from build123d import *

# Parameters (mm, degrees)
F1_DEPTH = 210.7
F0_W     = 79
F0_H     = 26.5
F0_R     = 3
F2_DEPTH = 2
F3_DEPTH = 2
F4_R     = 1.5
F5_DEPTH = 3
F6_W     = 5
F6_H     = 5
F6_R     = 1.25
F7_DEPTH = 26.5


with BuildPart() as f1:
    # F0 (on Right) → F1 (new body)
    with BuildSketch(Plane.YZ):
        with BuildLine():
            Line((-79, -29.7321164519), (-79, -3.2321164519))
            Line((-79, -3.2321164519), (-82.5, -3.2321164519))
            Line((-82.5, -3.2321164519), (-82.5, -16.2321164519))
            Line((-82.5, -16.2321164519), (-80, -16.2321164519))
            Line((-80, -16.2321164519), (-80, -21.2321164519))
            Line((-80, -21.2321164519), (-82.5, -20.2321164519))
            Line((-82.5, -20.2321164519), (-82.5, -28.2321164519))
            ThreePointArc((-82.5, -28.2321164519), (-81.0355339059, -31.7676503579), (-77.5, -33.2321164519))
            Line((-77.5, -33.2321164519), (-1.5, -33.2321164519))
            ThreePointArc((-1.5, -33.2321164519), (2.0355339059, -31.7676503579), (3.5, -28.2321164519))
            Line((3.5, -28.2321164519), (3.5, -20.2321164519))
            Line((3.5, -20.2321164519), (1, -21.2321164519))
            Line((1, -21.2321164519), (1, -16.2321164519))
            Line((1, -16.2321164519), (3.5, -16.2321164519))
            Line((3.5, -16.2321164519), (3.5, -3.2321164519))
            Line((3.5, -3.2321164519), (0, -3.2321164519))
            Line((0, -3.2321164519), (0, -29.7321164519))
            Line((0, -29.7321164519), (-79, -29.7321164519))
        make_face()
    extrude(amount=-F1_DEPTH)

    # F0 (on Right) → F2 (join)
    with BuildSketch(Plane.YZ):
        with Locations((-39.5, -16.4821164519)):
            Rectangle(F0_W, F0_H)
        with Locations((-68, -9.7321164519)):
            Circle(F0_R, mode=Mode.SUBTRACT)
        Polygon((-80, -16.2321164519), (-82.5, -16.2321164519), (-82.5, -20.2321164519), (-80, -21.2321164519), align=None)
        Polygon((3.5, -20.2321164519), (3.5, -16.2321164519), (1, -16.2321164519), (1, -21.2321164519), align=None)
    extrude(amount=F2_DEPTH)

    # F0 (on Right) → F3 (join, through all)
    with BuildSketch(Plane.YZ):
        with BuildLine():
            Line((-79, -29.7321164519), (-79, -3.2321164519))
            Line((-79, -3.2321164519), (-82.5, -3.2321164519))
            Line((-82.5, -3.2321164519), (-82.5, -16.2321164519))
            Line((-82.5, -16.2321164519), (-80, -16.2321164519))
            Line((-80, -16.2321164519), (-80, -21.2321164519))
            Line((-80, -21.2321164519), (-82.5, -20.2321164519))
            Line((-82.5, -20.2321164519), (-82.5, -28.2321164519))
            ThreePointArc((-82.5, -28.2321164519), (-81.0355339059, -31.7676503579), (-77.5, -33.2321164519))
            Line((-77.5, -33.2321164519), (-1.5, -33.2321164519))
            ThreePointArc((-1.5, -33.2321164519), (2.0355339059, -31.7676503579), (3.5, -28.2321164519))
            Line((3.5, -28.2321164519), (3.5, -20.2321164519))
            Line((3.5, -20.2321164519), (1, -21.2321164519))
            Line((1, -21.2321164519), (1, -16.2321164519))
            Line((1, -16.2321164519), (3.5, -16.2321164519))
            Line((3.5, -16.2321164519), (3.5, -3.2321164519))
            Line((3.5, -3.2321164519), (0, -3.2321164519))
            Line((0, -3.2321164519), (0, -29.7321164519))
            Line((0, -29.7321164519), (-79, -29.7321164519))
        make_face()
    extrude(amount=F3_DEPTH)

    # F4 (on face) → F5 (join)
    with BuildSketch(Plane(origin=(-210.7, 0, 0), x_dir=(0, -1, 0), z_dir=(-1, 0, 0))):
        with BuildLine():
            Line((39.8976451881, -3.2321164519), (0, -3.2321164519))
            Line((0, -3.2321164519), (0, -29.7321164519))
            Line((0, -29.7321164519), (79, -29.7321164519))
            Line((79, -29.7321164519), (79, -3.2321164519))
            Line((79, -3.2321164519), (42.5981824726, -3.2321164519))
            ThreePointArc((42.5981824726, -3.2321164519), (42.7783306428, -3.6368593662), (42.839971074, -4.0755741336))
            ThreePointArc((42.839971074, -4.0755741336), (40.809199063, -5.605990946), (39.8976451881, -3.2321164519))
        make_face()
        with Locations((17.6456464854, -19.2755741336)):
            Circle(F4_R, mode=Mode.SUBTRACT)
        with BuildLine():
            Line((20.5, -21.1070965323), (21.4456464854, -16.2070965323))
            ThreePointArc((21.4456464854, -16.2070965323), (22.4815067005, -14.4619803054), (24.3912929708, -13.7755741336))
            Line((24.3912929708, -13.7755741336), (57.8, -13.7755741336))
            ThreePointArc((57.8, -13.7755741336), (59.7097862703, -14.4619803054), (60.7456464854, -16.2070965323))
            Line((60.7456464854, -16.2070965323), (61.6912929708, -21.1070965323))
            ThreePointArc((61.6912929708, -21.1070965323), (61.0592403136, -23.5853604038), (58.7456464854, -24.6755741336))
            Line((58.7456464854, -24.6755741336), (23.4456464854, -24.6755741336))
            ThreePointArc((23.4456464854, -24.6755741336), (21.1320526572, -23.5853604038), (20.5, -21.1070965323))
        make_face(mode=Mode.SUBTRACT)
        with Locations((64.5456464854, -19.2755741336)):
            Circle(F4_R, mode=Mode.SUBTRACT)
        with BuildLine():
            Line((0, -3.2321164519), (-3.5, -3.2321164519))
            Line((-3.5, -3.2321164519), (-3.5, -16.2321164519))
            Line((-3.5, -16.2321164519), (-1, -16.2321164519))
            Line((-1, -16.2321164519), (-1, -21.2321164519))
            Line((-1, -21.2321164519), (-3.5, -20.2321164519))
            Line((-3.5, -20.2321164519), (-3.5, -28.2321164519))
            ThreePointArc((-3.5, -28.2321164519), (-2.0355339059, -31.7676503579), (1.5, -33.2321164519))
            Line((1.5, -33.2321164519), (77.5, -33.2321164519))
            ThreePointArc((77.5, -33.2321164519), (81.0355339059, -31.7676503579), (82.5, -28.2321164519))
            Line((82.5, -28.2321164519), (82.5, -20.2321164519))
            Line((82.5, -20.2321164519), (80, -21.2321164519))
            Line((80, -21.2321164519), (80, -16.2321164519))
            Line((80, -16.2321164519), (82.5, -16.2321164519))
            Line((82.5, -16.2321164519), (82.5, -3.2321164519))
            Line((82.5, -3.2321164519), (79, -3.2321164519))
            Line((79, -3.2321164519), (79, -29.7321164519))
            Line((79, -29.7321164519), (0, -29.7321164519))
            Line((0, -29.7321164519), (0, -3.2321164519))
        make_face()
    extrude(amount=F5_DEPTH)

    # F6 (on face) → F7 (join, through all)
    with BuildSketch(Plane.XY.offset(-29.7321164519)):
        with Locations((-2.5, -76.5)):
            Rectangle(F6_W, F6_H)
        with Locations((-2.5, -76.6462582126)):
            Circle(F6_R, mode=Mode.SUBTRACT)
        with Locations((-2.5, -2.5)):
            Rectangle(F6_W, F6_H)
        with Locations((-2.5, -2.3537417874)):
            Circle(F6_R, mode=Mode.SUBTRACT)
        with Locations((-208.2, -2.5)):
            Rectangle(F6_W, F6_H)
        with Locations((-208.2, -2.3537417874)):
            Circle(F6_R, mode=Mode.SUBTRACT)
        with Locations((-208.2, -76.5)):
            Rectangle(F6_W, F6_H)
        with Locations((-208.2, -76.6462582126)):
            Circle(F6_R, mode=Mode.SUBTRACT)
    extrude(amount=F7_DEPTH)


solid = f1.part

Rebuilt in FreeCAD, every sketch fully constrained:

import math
import FreeCAD as App
import Part
import Sketcher

V = App.Vector
Q = App.Units.Quantity

doc = App.newDocument("Part")
body = doc.addObject("PartDesign::Body", "Body")
body.AllowCompound = True

sketch1 = body.newObject("Sketcher::SketchObject", "Sketch")
sketch1.AttachmentSupport = (doc.getObject("YZ_Plane"), [""])
sketch1.MapMode = "FlatFace"
sketch1.addGeometry([
    Part.LineSegment(V(-79, -29.7, 0), V(-79, -3.2, 0)),
    Part.LineSegment(V(-79, -3.2, 0), V(-82.5, -3.2, 0)),
    Part.LineSegment(V(-82.5, -3.2, 0), V(-82.5, -16.2, 0)),
    Part.LineSegment(V(-82.5, -16.2, 0), V(-80, -16.2, 0)),
    Part.LineSegment(V(-80, -16.2, 0), V(-80, -21.2, 0)),
    Part.LineSegment(V(-80, -21.2, 0), V(-82.5, -20.2, 0)),
    Part.LineSegment(V(-82.5, -20.2, 0), V(-82.5, -28.2, 0)),
    Part.ArcOfCircle(Part.Circle(V(-77.5, -28.2, 0), V(0, 0, 1), 5), math.radians(180), math.radians(270)),
    Part.LineSegment(V(-77.5, -33.2, 0), V(-1.5, -33.2, 0)),
    Part.ArcOfCircle(Part.Circle(V(-1.5, -28.2, 0), V(0, 0, 1), 5), math.radians(-90), math.radians(0)),
    Part.LineSegment(V(3.5, -28.2, 0), V(3.5, -20.2, 0)),
    Part.LineSegment(V(3.5, -20.2, 0), V(1, -21.2, 0)),
    Part.LineSegment(V(1, -21.2, 0), V(1, -16.2, 0)),
    Part.LineSegment(V(1, -16.2, 0), V(3.5, -16.2, 0)),
    Part.LineSegment(V(3.5, -16.2, 0), V(3.5, -3.2, 0)),
    Part.LineSegment(V(3.5, -3.2, 0), V(0, -3.2, 0)),
    Part.LineSegment(V(0, -3.2, 0), V(0, -29.7, 0)),
    Part.LineSegment(V(0, -29.7, 0), V(-79, -29.7, 0)),
], False)
sketch1.addConstraint([
    Sketcher.Constraint("Coincident", 0, 2, 1, 1),
    Sketcher.Constraint("Coincident", 1, 2, 2, 1),
    Sketcher.Constraint("Coincident", 2, 2, 3, 1),
    Sketcher.Constraint("Coincident", 3, 2, 4, 1),
    Sketcher.Constraint("Coincident", 4, 2, 5, 1),
    Sketcher.Constraint("Coincident", 5, 2, 6, 1),
    Sketcher.Constraint("Tangent", 6, 2, 7, 1),
    Sketcher.Constraint("Tangent", 7, 2, 8, 1),
    Sketcher.Constraint("Tangent", 8, 2, 9, 1),
    Sketcher.Constraint("Tangent", 9, 2, 10, 1),
    Sketcher.Constraint("Coincident", 10, 2, 11, 1),
    Sketcher.Constraint("Coincident", 11, 2, 12, 1),
    Sketcher.Constraint("Coincident", 12, 2, 13, 1),
    Sketcher.Constraint("Coincident", 13, 2, 14, 1),
    Sketcher.Constraint("Coincident", 14, 2, 15, 1),
    Sketcher.Constraint("Coincident", 15, 2, 16, 1),
    Sketcher.Constraint("Coincident", 16, 2, 17, 1),
    Sketcher.Constraint("Coincident", 17, 2, 0, 1),
    Sketcher.Constraint("Vertical", 0),
    Sketcher.Constraint("Horizontal", 1),
    Sketcher.Constraint("Vertical", 2),
    Sketcher.Constraint("Horizontal", 3),
    Sketcher.Constraint("Vertical", 4),
    Sketcher.Constraint("Vertical", 6),
    Sketcher.Constraint("Horizontal", 8),
    Sketcher.Constraint("Vertical", 10),
    Sketcher.Constraint("Vertical", 12),
    Sketcher.Constraint("Horizontal", 13),
    Sketcher.Constraint("Vertical", 14),
    Sketcher.Constraint("Horizontal", 15),
    Sketcher.Constraint("Vertical", 16),
    Sketcher.Constraint("Horizontal", 17),
    Sketcher.Constraint("Equal", 7, 9),
    Sketcher.Constraint("PointOnObject", 15, 2, -2),
    Sketcher.Constraint("Horizontal", 5, 2, 10, 2),
    Sketcher.Constraint("Horizontal", 4, 2, 11, 2),
    Sketcher.Constraint("Horizontal", 3, 2, 12, 2),
    Sketcher.Constraint("Horizontal", 1, 2, 14, 2),
    Sketcher.Constraint("Vertical", 2, 2, 5, 2),
    Sketcher.Constraint("Vertical", 10, 2, 13, 2),
    Sketcher.Constraint("Equal", 3, 13),
    Sketcher.Constraint("Equal", 1, 15),
    Sketcher.Constraint("Radius", 7, Q("5 mm")),
    Sketcher.Constraint("DistanceX", 8, 1, 8, 2, Q("76 mm")),
    Sketcher.Constraint("DistanceX", 17, 2, 17, 1, Q("79 mm")),
    Sketcher.Constraint("DistanceY", 2, 2, 2, 1, Q("13 mm")),
    Sketcher.Constraint("DistanceY", 4, 2, 4, 1, Q("5 mm")),
    Sketcher.Constraint("DistanceY", 6, 2, 6, 1, Q("8 mm")),
    Sketcher.Constraint("DistanceX", 3, 1, 3, 2, Q("2.5 mm")),
    Sketcher.Constraint("DistanceY", 0, 1, 0, 2, Q("26.5 mm")),
    Sketcher.Constraint("DistanceY", 7, 3, 0, 2, Q("25 mm")),
    Sketcher.Constraint("DistanceY", 7, 3, -1, 1, Q("28.232116 mm")),
])
pad1 = body.newObject("PartDesign::Pad", "Pad")
pad1.Profile = sketch1
pad1.Length = 210.7
pad1.Reversed = True

sketch2 = body.newObject("Sketcher::SketchObject", "Sketch001")
sketch2.AttachmentSupport = (doc.getObject("YZ_Plane"), [""])
sketch2.MapMode = "FlatFace"
sketch2.addGeometry([
    Part.LineSegment(V(-79, -3.2, 0), V(-79, -29.7, 0)),
    Part.LineSegment(V(-79, -29.7, 0), V(0, -29.7, 0)),
    Part.LineSegment(V(0, -29.7, 0), V(0, -3.2, 0)),
    Part.LineSegment(V(0, -3.2, 0), V(-79, -3.2, 0)),
    Part.Circle(V(-68, -9.7, 0), V(0, 0, 1), 3),
    Part.LineSegment(V(-80, -16.2, 0), V(-82.5, -16.2, 0)),
    Part.LineSegment(V(-82.5, -16.2, 0), V(-82.5, -20.2, 0)),
    Part.LineSegment(V(-82.5, -20.2, 0), V(-80, -21.2, 0)),
    Part.LineSegment(V(-80, -21.2, 0), V(-80, -16.2, 0)),
    Part.LineSegment(V(3.5, -20.2, 0), V(3.5, -16.2, 0)),
    Part.LineSegment(V(3.5, -16.2, 0), V(1, -16.2, 0)),
    Part.LineSegment(V(1, -16.2, 0), V(1, -21.2, 0)),
    Part.LineSegment(V(1, -21.2, 0), V(3.5, -20.2, 0)),
], False)
sketch2.addConstraint([
    Sketcher.Constraint("Coincident", 0, 2, 1, 1),
    Sketcher.Constraint("Coincident", 1, 2, 2, 1),
    Sketcher.Constraint("Coincident", 2, 2, 3, 1),
    Sketcher.Constraint("Coincident", 3, 2, 0, 1),
    Sketcher.Constraint("Coincident", 5, 2, 6, 1),
    Sketcher.Constraint("Coincident", 6, 2, 7, 1),
    Sketcher.Constraint("Coincident", 7, 2, 8, 1),
    Sketcher.Constraint("Coincident", 8, 2, 5, 1),
    Sketcher.Constraint("Coincident", 9, 2, 10, 1),
    Sketcher.Constraint("Coincident", 10, 2, 11, 1),
    Sketcher.Constraint("Coincident", 11, 2, 12, 1),
    Sketcher.Constraint("Coincident", 12, 2, 9, 1),
    Sketcher.Constraint("Vertical", 0),
    Sketcher.Constraint("Horizontal", 1),
    Sketcher.Constraint("Vertical", 2),
    Sketcher.Constraint("Horizontal", 3),
    Sketcher.Constraint("Horizontal", 5),
    Sketcher.Constraint("Vertical", 6),
    Sketcher.Constraint("Vertical", 8),
    Sketcher.Constraint("Vertical", 9),
    Sketcher.Constraint("Horizontal", 10),
    Sketcher.Constraint("Vertical", 11),
    Sketcher.Constraint("PointOnObject", 1, 2, -2),
    Sketcher.Constraint("Horizontal", 8, 2, 9, 2),
    Sketcher.Constraint("Horizontal", 7, 2, 11, 2),
    Sketcher.Constraint("Horizontal", 6, 2, 12, 2),
    Sketcher.Constraint("Equal", 5, 10),
    Sketcher.Constraint("Diameter", 4, Q("6 mm")),
    Sketcher.Constraint("DistanceX", 1, 1, 1, 2, Q("79 mm")),
    Sketcher.Constraint("DistanceY", 6, 2, 6, 1, Q("4 mm")),
    Sketcher.Constraint("DistanceY", 8, 1, 8, 2, Q("5 mm")),
    Sketcher.Constraint("DistanceX", 5, 2, 5, 1, Q("2.5 mm")),
    Sketcher.Constraint("DistanceY", 0, 2, 0, 1, Q("26.5 mm")),
    Sketcher.Constraint("DistanceX", 4, 3, -1, 1, Q("68 mm")),
    Sketcher.Constraint("DistanceX", 7, 2, -1, 1, Q("80 mm")),
    Sketcher.Constraint("DistanceX", -1, 1, 10, 2, Q("1 mm")),
    Sketcher.Constraint("DistanceY", 0, 2, 4, 3, Q("20 mm")),
    Sketcher.Constraint("DistanceY", 5, 2, 3, 2, Q("13 mm")),
    Sketcher.Constraint("DistanceY", 4, 3, -1, 1, Q("9.732116 mm")),
])
pad2 = body.newObject("PartDesign::Pad", "Pad001")
pad2.Profile = sketch2
pad2.Length = 2

sketch3 = body.newObject("Sketcher::SketchObject", "Sketch002")
sketch3.AttachmentSupport = (doc.getObject("YZ_Plane"), [""])
sketch3.MapMode = "FlatFace"
sketch3.addGeometry([
    Part.LineSegment(V(-79, -29.7, 0), V(-79, -3.2, 0)),
    Part.LineSegment(V(-79, -3.2, 0), V(-82.5, -3.2, 0)),
    Part.LineSegment(V(-82.5, -3.2, 0), V(-82.5, -16.2, 0)),
    Part.LineSegment(V(-82.5, -16.2, 0), V(-80, -16.2, 0)),
    Part.LineSegment(V(-80, -16.2, 0), V(-80, -21.2, 0)),
    Part.LineSegment(V(-80, -21.2, 0), V(-82.5, -20.2, 0)),
    Part.LineSegment(V(-82.5, -20.2, 0), V(-82.5, -28.2, 0)),
    Part.ArcOfCircle(Part.Circle(V(-77.5, -28.2, 0), V(0, 0, 1), 5), math.radians(180), math.radians(270)),
    Part.LineSegment(V(-77.5, -33.2, 0), V(-1.5, -33.2, 0)),
    Part.ArcOfCircle(Part.Circle(V(-1.5, -28.2, 0), V(0, 0, 1), 5), math.radians(-90), math.radians(0)),
    Part.LineSegment(V(3.5, -28.2, 0), V(3.5, -20.2, 0)),
    Part.LineSegment(V(3.5, -20.2, 0), V(1, -21.2, 0)),
    Part.LineSegment(V(1, -21.2, 0), V(1, -16.2, 0)),
    Part.LineSegment(V(1, -16.2, 0), V(3.5, -16.2, 0)),
    Part.LineSegment(V(3.5, -16.2, 0), V(3.5, -3.2, 0)),
    Part.LineSegment(V(3.5, -3.2, 0), V(0, -3.2, 0)),
    Part.LineSegment(V(0, -3.2, 0), V(0, -29.7, 0)),
    Part.LineSegment(V(0, -29.7, 0), V(-79, -29.7, 0)),
], False)
sketch3.addConstraint([
    Sketcher.Constraint("Coincident", 0, 2, 1, 1),
    Sketcher.Constraint("Coincident", 1, 2, 2, 1),
    Sketcher.Constraint("Coincident", 2, 2, 3, 1),
    Sketcher.Constraint("Coincident", 3, 2, 4, 1),
    Sketcher.Constraint("Coincident", 4, 2, 5, 1),
    Sketcher.Constraint("Coincident", 5, 2, 6, 1),
    Sketcher.Constraint("Tangent", 6, 2, 7, 1),
    Sketcher.Constraint("Tangent", 7, 2, 8, 1),
    Sketcher.Constraint("Tangent", 8, 2, 9, 1),
    Sketcher.Constraint("Tangent", 9, 2, 10, 1),
    Sketcher.Constraint("Coincident", 10, 2, 11, 1),
    Sketcher.Constraint("Coincident", 11, 2, 12, 1),
    Sketcher.Constraint("Coincident", 12, 2, 13, 1),
    Sketcher.Constraint("Coincident", 13, 2, 14, 1),
    Sketcher.Constraint("Coincident", 14, 2, 15, 1),
    Sketcher.Constraint("Coincident", 15, 2, 16, 1),
    Sketcher.Constraint("Coincident", 16, 2, 17, 1),
    Sketcher.Constraint("Coincident", 17, 2, 0, 1),
    Sketcher.Constraint("Vertical", 0),
    Sketcher.Constraint("Horizontal", 1),
    Sketcher.Constraint("Vertical", 2),
    Sketcher.Constraint("Horizontal", 3),
    Sketcher.Constraint("Vertical", 4),
    Sketcher.Constraint("Vertical", 6),
    Sketcher.Constraint("Horizontal", 8),
    Sketcher.Constraint("Vertical", 10),
    Sketcher.Constraint("Vertical", 12),
    Sketcher.Constraint("Horizontal", 13),
    Sketcher.Constraint("Vertical", 14),
    Sketcher.Constraint("Horizontal", 15),
    Sketcher.Constraint("Vertical", 16),
    Sketcher.Constraint("Horizontal", 17),
    Sketcher.Constraint("Equal", 7, 9),
    Sketcher.Constraint("PointOnObject", 15, 2, -2),
    Sketcher.Constraint("Horizontal", 5, 2, 10, 2),
    Sketcher.Constraint("Horizontal", 4, 2, 11, 2),
    Sketcher.Constraint("Horizontal", 3, 2, 12, 2),
    Sketcher.Constraint("Horizontal", 1, 2, 14, 2),
    Sketcher.Constraint("Vertical", 2, 2, 5, 2),
    Sketcher.Constraint("Vertical", 10, 2, 13, 2),
    Sketcher.Constraint("Equal", 3, 13),
    Sketcher.Constraint("Equal", 1, 15),
    Sketcher.Constraint("Radius", 7, Q("5 mm")),
    Sketcher.Constraint("DistanceX", 8, 1, 8, 2, Q("76 mm")),
    Sketcher.Constraint("DistanceX", 17, 2, 17, 1, Q("79 mm")),
    Sketcher.Constraint("DistanceY", 2, 2, 2, 1, Q("13 mm")),
    Sketcher.Constraint("DistanceY", 4, 2, 4, 1, Q("5 mm")),
    Sketcher.Constraint("DistanceY", 6, 2, 6, 1, Q("8 mm")),
    Sketcher.Constraint("DistanceX", 3, 1, 3, 2, Q("2.5 mm")),
    Sketcher.Constraint("DistanceY", 0, 1, 0, 2, Q("26.5 mm")),
    Sketcher.Constraint("DistanceY", 7, 3, 0, 2, Q("25 mm")),
    Sketcher.Constraint("DistanceY", 7, 3, -1, 1, Q("28.232116 mm")),
])
pad3 = body.newObject("PartDesign::Pad", "Pad002")
pad3.Profile = sketch3
pad3.Type = "UpToLast"

sketch4 = body.newObject("Sketcher::SketchObject", "Sketch003")
sketch4.AttachmentSupport = (doc.getObject("YZ_Plane"), [""])
sketch4.MapMode = "FlatFace"
sketch4.AttachmentOffset = App.Placement(V(0, 0, -210.7), App.Rotation())
sketch4.addGeometry([
    Part.LineSegment(V(-39.9, -3.2, 0), V(3.5, -3.2, 0)),
    Part.LineSegment(V(3.5, -3.2, 0), V(3.5, -16.2, 0)),
    Part.LineSegment(V(3.5, -16.2, 0), V(1, -16.2, 0)),
    Part.LineSegment(V(1, -16.2, 0), V(1, -21.2, 0)),
    Part.LineSegment(V(1, -21.2, 0), V(3.5, -20.2, 0)),
    Part.LineSegment(V(3.5, -20.2, 0), V(3.5, -28.2, 0)),
    Part.ArcOfCircle(Part.Circle(V(-1.5, -28.2, 0), V(0, 0, 1), 5), math.radians(-90), math.radians(0)),
    Part.LineSegment(V(-1.5, -33.2, 0), V(-77.5, -33.2, 0)),
    Part.ArcOfCircle(Part.Circle(V(-77.5, -28.2, 0), V(0, 0, 1), 5), math.radians(180), math.radians(270)),
    Part.LineSegment(V(-82.5, -28.2, 0), V(-82.5, -20.2, 0)),
    Part.LineSegment(V(-82.5, -20.2, 0), V(-80, -21.2, 0)),
    Part.LineSegment(V(-80, -21.2, 0), V(-80, -16.2, 0)),
    Part.LineSegment(V(-80, -16.2, 0), V(-82.5, -16.2, 0)),
    Part.LineSegment(V(-82.5, -16.2, 0), V(-82.5, -3.2, 0)),
    Part.LineSegment(V(-82.5, -3.2, 0), V(-42.6, -3.2, 0)),
    Part.ArcOfCircle(Part.Circle(V(-41.2, -4.1, 0), V(0, 0, 1), 1.6), math.radians(148), math.radians(180)),
    Part.ArcOfCircle(Part.Circle(V(-41.2, -4.1, 0), V(0, 0, 1), 1.6), math.radians(180), math.radians(392)),
    Part.Circle(V(-17.6, -19.3, 0), V(0, 0, 1), 1.5),
    Part.Circle(V(-64.5, -19.3, 0), V(0, 0, 1), 1.5),
    Part.ArcOfCircle(Part.Circle(V(-23.4, -21.7, 0), V(0, 0, 1), 3), math.radians(-90), math.radians(11)),
    Part.LineSegment(V(-20.5, -21.1, 0), V(-21.4, -16.2, 0)),
    Part.ArcOfCircle(Part.Circle(V(-24.4, -16.8, 0), V(0, 0, 1), 3), math.radians(11), math.radians(90)),
    Part.LineSegment(V(-24.4, -13.8, 0), V(-57.8, -13.8, 0)),
    Part.ArcOfCircle(Part.Circle(V(-57.8, -16.8, 0), V(0, 0, 1), 3), math.radians(90), math.radians(169)),
    Part.LineSegment(V(-60.7, -16.2, 0), V(-61.7, -21.1, 0)),
    Part.ArcOfCircle(Part.Circle(V(-58.7, -21.7, 0), V(0, 0, 1), 3), math.radians(169), math.radians(270)),
    Part.LineSegment(V(-58.7, -24.7, 0), V(-23.4, -24.7, 0)),
], False)
sketch4.addConstraint([
    Sketcher.Constraint("Coincident", 0, 2, 1, 1),
    Sketcher.Constraint("Coincident", 1, 2, 2, 1),
    Sketcher.Constraint("Coincident", 2, 2, 3, 1),
    Sketcher.Constraint("Coincident", 3, 2, 4, 1),
    Sketcher.Constraint("Coincident", 4, 2, 5, 1),
    Sketcher.Constraint("Tangent", 5, 2, 6, 2),
    Sketcher.Constraint("Tangent", 6, 1, 7, 1),
    Sketcher.Constraint("Tangent", 7, 2, 8, 2),
    Sketcher.Constraint("Tangent", 8, 1, 9, 1),
    Sketcher.Constraint("Coincident", 9, 2, 10, 1),
    Sketcher.Constraint("Coincident", 10, 2, 11, 1),
    Sketcher.Constraint("Coincident", 11, 2, 12, 1),
    Sketcher.Constraint("Coincident", 12, 2, 13, 1),
    Sketcher.Constraint("Coincident", 13, 2, 14, 1),
    Sketcher.Constraint("Coincident", 14, 2, 15, 1),
    Sketcher.Constraint("Tangent", 15, 2, 16, 1),
    Sketcher.Constraint("Coincident", 16, 2, 0, 1),
    Sketcher.Constraint("Tangent", 19, 2, 20, 1),
    Sketcher.Constraint("Tangent", 20, 2, 21, 1),
    Sketcher.Constraint("Tangent", 21, 2, 22, 1),
    Sketcher.Constraint("Tangent", 22, 2, 23, 1),
    Sketcher.Constraint("Tangent", 23, 2, 24, 1),
    Sketcher.Constraint("Tangent", 24, 2, 25, 1),
    Sketcher.Constraint("Tangent", 25, 2, 26, 1),
    Sketcher.Constraint("Tangent", 26, 2, 19, 1),
    Sketcher.Constraint("Horizontal", 0),
    Sketcher.Constraint("Vertical", 1),
    Sketcher.Constraint("Horizontal", 2),
    Sketcher.Constraint("Vertical", 3),
    Sketcher.Constraint("Vertical", 5),
    Sketcher.Constraint("Horizontal", 7),
    Sketcher.Constraint("Vertical", 9),
    Sketcher.Constraint("Vertical", 11),
    Sketcher.Constraint("Horizontal", 12),
    Sketcher.Constraint("Vertical", 13),
    Sketcher.Constraint("Horizontal", 14),
    Sketcher.Constraint("Horizontal", 22),
    Sketcher.Constraint("Horizontal", 26),
    Sketcher.Constraint("Equal", 6, 8),
    Sketcher.Constraint("Equal", 15, 16),
    Sketcher.Constraint("Equal", 17, 18),
    Sketcher.Constraint("Equal", 19, 21),
    Sketcher.Constraint("Equal", 21, 23),
    Sketcher.Constraint("Equal", 23, 25),
    Sketcher.Constraint("Horizontal", 17, 3, 18, 3),
    Sketcher.Constraint("Horizontal", 4, 2, 9, 2),
    Sketcher.Constraint("Horizontal", 3, 2, 10, 2),
    Sketcher.Constraint("Horizontal", 2, 2, 11, 2),
    Sketcher.Constraint("Horizontal", 0, 2, 13, 2),
    Sketcher.Constraint("Horizontal", 16, 3, 15, 2),
    Sketcher.Constraint("Horizontal", 20, 2, 23, 2),
    Sketcher.Constraint("Vertical", 1, 2, 4, 2),
    Sketcher.Constraint("Vertical", 9, 2, 12, 2),
    Sketcher.Constraint("Equal", 2, 12),
    Sketcher.Constraint("Diameter", 17, Q("3 mm")),
    Sketcher.Constraint("Radius", 6, Q("5 mm")),
    Sketcher.Constraint("Radius", 19, Q("3 mm")),
    Sketcher.Constraint("DistanceX", 7, 2, 7, 1, Q("76 mm")),
    Sketcher.Constraint("DistanceY", 1, 2, 1, 1, Q("13 mm")),
    Sketcher.Constraint("DistanceY", 3, 2, 3, 1, Q("5 mm")),
    Sketcher.Constraint("DistanceY", 5, 2, 5, 1, Q("8 mm")),
    Sketcher.Constraint("DistanceX", 2, 2, 2, 1, Q("2.5 mm")),
    Sketcher.Constraint("DistanceX", 26, 1, 26, 2, Q("35.3 mm")),
    Sketcher.Constraint("DistanceX", -1, 1, 2, 2, Q("1 mm")),
    Sketcher.Constraint("DistanceY", 6, 3, 0, 2, Q("25 mm")),
    Sketcher.Constraint("DistanceX", 19, 2, 6, 3, Q("19 mm")),
    Sketcher.Constraint("DistanceX", 19, 3, 20, 2, Q("2 mm")),
    Sketcher.Constraint("DistanceY", 17, 3, 15, 3, Q("15.2 mm")),
    Sketcher.Constraint("DistanceX", 18, 3, 17, 3, Q("46.9 mm")),
    Sketcher.Constraint("DistanceX", 19, 3, 17, 3, Q("5.8 mm")),
    Sketcher.Constraint("DistanceY", 19, 3, 17, 3, Q("2.4 mm")),
    Sketcher.Constraint("DistanceY", 19, 3, 21, 3, Q("4.9 mm")),
    Sketcher.Constraint("Radius", 15, Q("1.592057 mm")),
    Sketcher.Constraint("DistanceX", 0, 1, 0, 2, Q("43.397645 mm")),
    Sketcher.Constraint("DistanceX", 14, 1, 14, 2, Q("39.901818 mm")),
    Sketcher.Constraint("DistanceY", 6, 3, -1, 1, Q("28.232116 mm")),
])
pad4 = body.newObject("PartDesign::Pad", "Pad003")
pad4.Profile = sketch4
pad4.Length = 3
pad4.Reversed = True

sketch5 = body.newObject("Sketcher::SketchObject", "Sketch004")
sketch5.AttachmentSupport = (doc.getObject("XY_Plane"), [""])
sketch5.MapMode = "FlatFace"
sketch5.AttachmentOffset = App.Placement(V(0, 0, -29.732116), App.Rotation())
sketch5.addGeometry([
    Part.LineSegment(V(-5, -74, 0), V(-5, -79, 0)),
    Part.LineSegment(V(-5, -79, 0), V(0, -79, 0)),
    Part.LineSegment(V(0, -79, 0), V(0, -74, 0)),
    Part.LineSegment(V(0, -74, 0), V(-5, -74, 0)),
    Part.Circle(V(-2.5, -76.6, 0), V(0, 0, 1), 1.2),
    Part.LineSegment(V(-5, 0, 0), V(-5, -5, 0)),
    Part.LineSegment(V(-5, -5, 0), V(0, -5, 0)),
    Part.LineSegment(V(0, -5, 0), V(0, 0, 0)),
    Part.LineSegment(V(0, 0, 0), V(-5, 0, 0)),
    Part.Circle(V(-2.5, -2.4, 0), V(0, 0, 1), 1.2),
    Part.LineSegment(V(-210.7, 0, 0), V(-210.7, -5, 0)),
    Part.LineSegment(V(-210.7, -5, 0), V(-205.7, -5, 0)),
    Part.LineSegment(V(-205.7, -5, 0), V(-205.7, 0, 0)),
    Part.LineSegment(V(-205.7, 0, 0), V(-210.7, 0, 0)),
    Part.Circle(V(-208.2, -2.4, 0), V(0, 0, 1), 1.2),
    Part.LineSegment(V(-210.7, -74, 0), V(-210.7, -79, 0)),
    Part.LineSegment(V(-210.7, -79, 0), V(-205.7, -79, 0)),
    Part.LineSegment(V(-205.7, -79, 0), V(-205.7, -74, 0)),
    Part.LineSegment(V(-205.7, -74, 0), V(-210.7, -74, 0)),
    Part.Circle(V(-208.2, -76.6, 0), V(0, 0, 1), 1.2),
], False)
sketch5.addConstraint([
    Sketcher.Constraint("Coincident", 0, 2, 1, 1),
    Sketcher.Constraint("Coincident", 1, 2, 2, 1),
    Sketcher.Constraint("Coincident", 2, 2, 3, 1),
    Sketcher.Constraint("Coincident", 3, 2, 0, 1),
    Sketcher.Constraint("Coincident", 5, 2, 6, 1),
    Sketcher.Constraint("Coincident", 6, 2, 7, 1),
    Sketcher.Constraint("Coincident", 7, 2, 8, 1),
    Sketcher.Constraint("Coincident", 8, 2, 5, 1),
    Sketcher.Constraint("Coincident", 10, 2, 11, 1),
    Sketcher.Constraint("Coincident", 11, 2, 12, 1),
    Sketcher.Constraint("Coincident", 12, 2, 13, 1),
    Sketcher.Constraint("Coincident", 13, 2, 10, 1),
    Sketcher.Constraint("Coincident", 15, 2, 16, 1),
    Sketcher.Constraint("Coincident", 16, 2, 17, 1),
    Sketcher.Constraint("Coincident", 17, 2, 18, 1),
    Sketcher.Constraint("Coincident", 18, 2, 15, 1),
    Sketcher.Constraint("Vertical", 0),
    Sketcher.Constraint("Horizontal", 1),
    Sketcher.Constraint("Vertical", 2),
    Sketcher.Constraint("Horizontal", 3),
    Sketcher.Constraint("Vertical", 5),
    Sketcher.Constraint("Horizontal", 6),
    Sketcher.Constraint("Vertical", 7),
    Sketcher.Constraint("Horizontal", 8),
    Sketcher.Constraint("Vertical", 10),
    Sketcher.Constraint("Horizontal", 11),
    Sketcher.Constraint("Vertical", 12),
    Sketcher.Constraint("Horizontal", 13),
    Sketcher.Constraint("Vertical", 15),
    Sketcher.Constraint("Horizontal", 16),
    Sketcher.Constraint("Vertical", 17),
    Sketcher.Constraint("Horizontal", 18),
    Sketcher.Constraint("Coincident", 7, 2, -1, 1),
    Sketcher.Constraint("Equal", 4, 9),
    Sketcher.Constraint("Equal", 9, 14),
    Sketcher.Constraint("Equal", 14, 19),
    Sketcher.Constraint("PointOnObject", 1, 2, -2),
    Sketcher.Constraint("PointOnObject", 12, 2, -1),
    Sketcher.Constraint("Horizontal", 9, 3, 14, 3),
    Sketcher.Constraint("Horizontal", 4, 3, 19, 3),
    Sketcher.Constraint("Horizontal", 6, 2, 10, 2),
    Sketcher.Constraint("Horizontal", 1, 2, 15, 2),
    Sketcher.Constraint("Horizontal", 3, 2, 17, 2),
    Sketcher.Constraint("Vertical", 4, 3, 9, 3),
    Sketcher.Constraint("Vertical", 14, 3, 19, 3),
    Sketcher.Constraint("Vertical", 3, 2, 5, 2),
    Sketcher.Constraint("Vertical", 13, 2, 15, 2),
    Sketcher.Constraint("Vertical", 12, 2, 16, 2),
    Sketcher.Constraint("Equal", 8, 11),
    Sketcher.Constraint("Equal", 18, 0),
    Sketcher.Constraint("Equal", 2, 5),
    Sketcher.Constraint("Diameter", 4, Q("2.5 mm")),
    Sketcher.Constraint("DistanceX", 1, 1, 1, 2, Q("5 mm")),
    Sketcher.Constraint("DistanceY", 0, 2, -1, 1, Q("79 mm")),
    Sketcher.Constraint("DistanceX", 4, 3, -1, 1, Q("2.5 mm")),
    Sketcher.Constraint("DistanceX", 14, 3, -1, 1, Q("208.2 mm")),
    Sketcher.Constraint("DistanceX", 10, 2, -1, 1, Q("210.7 mm")),
    Sketcher.Constraint("DistanceY", 4, 3, -1, 1, Q("76.646258 mm")),
    Sketcher.Constraint("DistanceY", 9, 3, -1, 1, Q("2.353742 mm")),
])
pad5 = body.newObject("PartDesign::Pad", "Pad004")
pad5.Profile = sketch5
pad5.Length = 26.5

doc.recompute()
